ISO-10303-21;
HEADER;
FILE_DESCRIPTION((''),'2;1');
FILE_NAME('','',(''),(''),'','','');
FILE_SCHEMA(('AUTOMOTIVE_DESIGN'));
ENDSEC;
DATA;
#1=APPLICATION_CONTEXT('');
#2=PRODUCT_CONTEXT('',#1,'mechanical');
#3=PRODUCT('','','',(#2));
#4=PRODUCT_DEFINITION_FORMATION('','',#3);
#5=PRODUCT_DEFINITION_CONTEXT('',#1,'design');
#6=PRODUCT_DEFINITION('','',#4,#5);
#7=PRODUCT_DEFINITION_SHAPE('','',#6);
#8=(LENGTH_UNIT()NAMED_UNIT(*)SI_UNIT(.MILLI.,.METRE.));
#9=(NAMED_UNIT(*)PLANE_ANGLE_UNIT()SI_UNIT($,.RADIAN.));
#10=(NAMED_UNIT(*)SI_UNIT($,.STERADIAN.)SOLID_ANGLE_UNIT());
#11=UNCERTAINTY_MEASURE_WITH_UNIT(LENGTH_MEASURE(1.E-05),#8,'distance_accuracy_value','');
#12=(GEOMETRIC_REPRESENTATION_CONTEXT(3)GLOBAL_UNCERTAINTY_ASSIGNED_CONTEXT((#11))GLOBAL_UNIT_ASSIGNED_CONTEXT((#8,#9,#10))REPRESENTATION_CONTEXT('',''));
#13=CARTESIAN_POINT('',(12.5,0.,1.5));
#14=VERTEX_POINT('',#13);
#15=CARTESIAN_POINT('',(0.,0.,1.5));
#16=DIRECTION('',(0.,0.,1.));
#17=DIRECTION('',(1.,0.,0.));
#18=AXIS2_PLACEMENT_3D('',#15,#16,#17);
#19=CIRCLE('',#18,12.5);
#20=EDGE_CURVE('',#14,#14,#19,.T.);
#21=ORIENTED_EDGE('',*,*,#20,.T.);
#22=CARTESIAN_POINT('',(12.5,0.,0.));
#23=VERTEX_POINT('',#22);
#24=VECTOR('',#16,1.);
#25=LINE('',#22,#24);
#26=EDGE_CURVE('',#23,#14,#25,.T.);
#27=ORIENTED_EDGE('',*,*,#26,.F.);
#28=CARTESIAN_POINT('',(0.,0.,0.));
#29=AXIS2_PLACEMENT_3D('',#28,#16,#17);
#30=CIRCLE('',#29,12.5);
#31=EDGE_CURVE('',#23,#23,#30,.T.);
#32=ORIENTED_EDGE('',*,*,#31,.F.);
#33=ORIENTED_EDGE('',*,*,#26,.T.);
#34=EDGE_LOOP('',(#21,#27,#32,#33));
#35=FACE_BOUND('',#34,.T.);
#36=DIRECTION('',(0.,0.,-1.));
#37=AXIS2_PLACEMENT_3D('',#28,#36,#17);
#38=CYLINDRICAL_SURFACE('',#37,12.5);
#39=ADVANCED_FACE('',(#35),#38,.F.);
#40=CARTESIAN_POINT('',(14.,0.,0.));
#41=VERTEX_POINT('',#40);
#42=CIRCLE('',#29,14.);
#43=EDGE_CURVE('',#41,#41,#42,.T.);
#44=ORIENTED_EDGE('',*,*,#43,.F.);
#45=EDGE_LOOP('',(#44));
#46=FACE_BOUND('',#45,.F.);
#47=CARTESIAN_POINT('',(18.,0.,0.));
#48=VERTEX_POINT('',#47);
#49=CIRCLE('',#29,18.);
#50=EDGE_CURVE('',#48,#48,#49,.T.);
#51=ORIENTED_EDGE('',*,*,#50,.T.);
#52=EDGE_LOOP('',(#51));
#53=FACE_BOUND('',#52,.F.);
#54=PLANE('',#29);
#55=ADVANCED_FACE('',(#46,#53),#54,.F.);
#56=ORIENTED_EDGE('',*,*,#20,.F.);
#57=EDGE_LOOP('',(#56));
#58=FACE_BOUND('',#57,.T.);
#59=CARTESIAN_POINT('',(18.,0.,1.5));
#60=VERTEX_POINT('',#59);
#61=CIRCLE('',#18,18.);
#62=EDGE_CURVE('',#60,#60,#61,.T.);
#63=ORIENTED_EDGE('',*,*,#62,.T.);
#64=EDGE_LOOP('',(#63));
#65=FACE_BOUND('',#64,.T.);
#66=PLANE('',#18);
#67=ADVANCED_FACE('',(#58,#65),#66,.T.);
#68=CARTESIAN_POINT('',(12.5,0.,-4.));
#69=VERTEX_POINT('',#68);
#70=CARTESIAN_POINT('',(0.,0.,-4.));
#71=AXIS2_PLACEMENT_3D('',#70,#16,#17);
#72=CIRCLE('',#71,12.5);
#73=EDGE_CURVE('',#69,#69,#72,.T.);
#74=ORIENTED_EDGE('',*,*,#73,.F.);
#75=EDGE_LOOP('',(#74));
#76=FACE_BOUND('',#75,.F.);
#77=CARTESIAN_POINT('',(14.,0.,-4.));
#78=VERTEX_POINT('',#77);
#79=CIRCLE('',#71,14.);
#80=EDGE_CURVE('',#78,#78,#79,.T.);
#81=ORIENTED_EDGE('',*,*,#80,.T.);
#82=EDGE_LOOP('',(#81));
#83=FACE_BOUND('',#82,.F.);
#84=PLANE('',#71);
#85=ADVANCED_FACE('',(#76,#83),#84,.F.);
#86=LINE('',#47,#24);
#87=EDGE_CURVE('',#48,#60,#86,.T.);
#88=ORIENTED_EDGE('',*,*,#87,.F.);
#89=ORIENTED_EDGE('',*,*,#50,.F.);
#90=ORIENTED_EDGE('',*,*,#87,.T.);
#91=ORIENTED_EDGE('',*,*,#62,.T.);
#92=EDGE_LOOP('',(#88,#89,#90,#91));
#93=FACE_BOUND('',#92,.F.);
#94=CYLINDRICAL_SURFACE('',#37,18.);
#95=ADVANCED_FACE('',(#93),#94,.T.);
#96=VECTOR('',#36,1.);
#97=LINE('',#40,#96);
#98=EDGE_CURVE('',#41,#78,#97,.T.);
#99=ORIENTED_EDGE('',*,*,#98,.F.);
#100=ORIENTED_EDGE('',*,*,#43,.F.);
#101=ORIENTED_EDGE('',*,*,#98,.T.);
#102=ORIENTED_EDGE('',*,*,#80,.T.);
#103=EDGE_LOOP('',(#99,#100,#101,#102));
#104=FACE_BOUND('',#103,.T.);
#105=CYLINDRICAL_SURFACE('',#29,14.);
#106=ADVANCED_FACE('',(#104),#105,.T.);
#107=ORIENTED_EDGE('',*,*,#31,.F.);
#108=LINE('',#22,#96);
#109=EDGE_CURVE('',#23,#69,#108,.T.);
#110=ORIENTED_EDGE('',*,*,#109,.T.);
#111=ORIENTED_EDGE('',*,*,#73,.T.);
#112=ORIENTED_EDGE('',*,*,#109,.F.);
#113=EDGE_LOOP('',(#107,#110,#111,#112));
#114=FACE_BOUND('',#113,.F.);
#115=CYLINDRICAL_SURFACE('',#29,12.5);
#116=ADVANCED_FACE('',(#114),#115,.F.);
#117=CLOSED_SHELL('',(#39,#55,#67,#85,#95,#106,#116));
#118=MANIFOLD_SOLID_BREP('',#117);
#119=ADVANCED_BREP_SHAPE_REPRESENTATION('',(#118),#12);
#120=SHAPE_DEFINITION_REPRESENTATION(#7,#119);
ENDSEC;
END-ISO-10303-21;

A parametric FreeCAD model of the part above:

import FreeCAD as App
import Part
import Sketcher
from FreeCAD import Vector

doc = App.newDocument("Part")
body = doc.addObject("PartDesign::Body", "Body")

# Sketch on XY plane
sketch1 = body.newObject("Sketcher::SketchObject", "Sketch")
sketch1.AttachmentSupport = (doc.getObject("XY_Plane"), [""])
sketch1.MapMode = "FlatFace"
sketch1.addGeometry([
    Part.Circle(Vector(0, 0, 0), Vector(0, 0, 1), 18),
    Part.Circle(Vector(0, 0, 0), Vector(0, 0, 1), 12),
], False)
sketch1.addConstraint([
    Sketcher.Constraint("Coincident", 0, 3, -1, 1),
    Sketcher.Constraint("Coincident", 1, 3, -1, 1),
    Sketcher.Constraint("Diameter", 0, 36.0),
    Sketcher.Constraint("Diameter", 1, 25.0),
])
pad1 = body.newObject("PartDesign::Pad", "Pad")
pad1.Profile = sketch1
pad1.Length = 1.5

# Sketch on XY plane
sketch2 = body.newObject("Sketcher::SketchObject", "Sketch001")
sketch2.AttachmentSupport = (doc.getObject("XY_Plane"), [""])
sketch2.MapMode = "FlatFace"
sketch2.addGeometry([
    Part.Circle(Vector(0, 0, 0), Vector(0, 0, 1), 14),
    Part.Circle(Vector(0, 0, 0), Vector(0, 0, 1), 12),
], False)
sketch2.addConstraint([
    Sketcher.Constraint("Coincident", 0, 3, -1, 1),
    Sketcher.Constraint("Coincident", 1, 3, -1, 1),
    Sketcher.Constraint("Diameter", 0, 28.0),
    Sketcher.Constraint("Diameter", 1, 25.0),
])
pad2 = body.newObject("PartDesign::Pad", "Pad001")
pad2.Profile = sketch2
pad2.Length = 4
pad2.Reversed = True

doc.recompute()
